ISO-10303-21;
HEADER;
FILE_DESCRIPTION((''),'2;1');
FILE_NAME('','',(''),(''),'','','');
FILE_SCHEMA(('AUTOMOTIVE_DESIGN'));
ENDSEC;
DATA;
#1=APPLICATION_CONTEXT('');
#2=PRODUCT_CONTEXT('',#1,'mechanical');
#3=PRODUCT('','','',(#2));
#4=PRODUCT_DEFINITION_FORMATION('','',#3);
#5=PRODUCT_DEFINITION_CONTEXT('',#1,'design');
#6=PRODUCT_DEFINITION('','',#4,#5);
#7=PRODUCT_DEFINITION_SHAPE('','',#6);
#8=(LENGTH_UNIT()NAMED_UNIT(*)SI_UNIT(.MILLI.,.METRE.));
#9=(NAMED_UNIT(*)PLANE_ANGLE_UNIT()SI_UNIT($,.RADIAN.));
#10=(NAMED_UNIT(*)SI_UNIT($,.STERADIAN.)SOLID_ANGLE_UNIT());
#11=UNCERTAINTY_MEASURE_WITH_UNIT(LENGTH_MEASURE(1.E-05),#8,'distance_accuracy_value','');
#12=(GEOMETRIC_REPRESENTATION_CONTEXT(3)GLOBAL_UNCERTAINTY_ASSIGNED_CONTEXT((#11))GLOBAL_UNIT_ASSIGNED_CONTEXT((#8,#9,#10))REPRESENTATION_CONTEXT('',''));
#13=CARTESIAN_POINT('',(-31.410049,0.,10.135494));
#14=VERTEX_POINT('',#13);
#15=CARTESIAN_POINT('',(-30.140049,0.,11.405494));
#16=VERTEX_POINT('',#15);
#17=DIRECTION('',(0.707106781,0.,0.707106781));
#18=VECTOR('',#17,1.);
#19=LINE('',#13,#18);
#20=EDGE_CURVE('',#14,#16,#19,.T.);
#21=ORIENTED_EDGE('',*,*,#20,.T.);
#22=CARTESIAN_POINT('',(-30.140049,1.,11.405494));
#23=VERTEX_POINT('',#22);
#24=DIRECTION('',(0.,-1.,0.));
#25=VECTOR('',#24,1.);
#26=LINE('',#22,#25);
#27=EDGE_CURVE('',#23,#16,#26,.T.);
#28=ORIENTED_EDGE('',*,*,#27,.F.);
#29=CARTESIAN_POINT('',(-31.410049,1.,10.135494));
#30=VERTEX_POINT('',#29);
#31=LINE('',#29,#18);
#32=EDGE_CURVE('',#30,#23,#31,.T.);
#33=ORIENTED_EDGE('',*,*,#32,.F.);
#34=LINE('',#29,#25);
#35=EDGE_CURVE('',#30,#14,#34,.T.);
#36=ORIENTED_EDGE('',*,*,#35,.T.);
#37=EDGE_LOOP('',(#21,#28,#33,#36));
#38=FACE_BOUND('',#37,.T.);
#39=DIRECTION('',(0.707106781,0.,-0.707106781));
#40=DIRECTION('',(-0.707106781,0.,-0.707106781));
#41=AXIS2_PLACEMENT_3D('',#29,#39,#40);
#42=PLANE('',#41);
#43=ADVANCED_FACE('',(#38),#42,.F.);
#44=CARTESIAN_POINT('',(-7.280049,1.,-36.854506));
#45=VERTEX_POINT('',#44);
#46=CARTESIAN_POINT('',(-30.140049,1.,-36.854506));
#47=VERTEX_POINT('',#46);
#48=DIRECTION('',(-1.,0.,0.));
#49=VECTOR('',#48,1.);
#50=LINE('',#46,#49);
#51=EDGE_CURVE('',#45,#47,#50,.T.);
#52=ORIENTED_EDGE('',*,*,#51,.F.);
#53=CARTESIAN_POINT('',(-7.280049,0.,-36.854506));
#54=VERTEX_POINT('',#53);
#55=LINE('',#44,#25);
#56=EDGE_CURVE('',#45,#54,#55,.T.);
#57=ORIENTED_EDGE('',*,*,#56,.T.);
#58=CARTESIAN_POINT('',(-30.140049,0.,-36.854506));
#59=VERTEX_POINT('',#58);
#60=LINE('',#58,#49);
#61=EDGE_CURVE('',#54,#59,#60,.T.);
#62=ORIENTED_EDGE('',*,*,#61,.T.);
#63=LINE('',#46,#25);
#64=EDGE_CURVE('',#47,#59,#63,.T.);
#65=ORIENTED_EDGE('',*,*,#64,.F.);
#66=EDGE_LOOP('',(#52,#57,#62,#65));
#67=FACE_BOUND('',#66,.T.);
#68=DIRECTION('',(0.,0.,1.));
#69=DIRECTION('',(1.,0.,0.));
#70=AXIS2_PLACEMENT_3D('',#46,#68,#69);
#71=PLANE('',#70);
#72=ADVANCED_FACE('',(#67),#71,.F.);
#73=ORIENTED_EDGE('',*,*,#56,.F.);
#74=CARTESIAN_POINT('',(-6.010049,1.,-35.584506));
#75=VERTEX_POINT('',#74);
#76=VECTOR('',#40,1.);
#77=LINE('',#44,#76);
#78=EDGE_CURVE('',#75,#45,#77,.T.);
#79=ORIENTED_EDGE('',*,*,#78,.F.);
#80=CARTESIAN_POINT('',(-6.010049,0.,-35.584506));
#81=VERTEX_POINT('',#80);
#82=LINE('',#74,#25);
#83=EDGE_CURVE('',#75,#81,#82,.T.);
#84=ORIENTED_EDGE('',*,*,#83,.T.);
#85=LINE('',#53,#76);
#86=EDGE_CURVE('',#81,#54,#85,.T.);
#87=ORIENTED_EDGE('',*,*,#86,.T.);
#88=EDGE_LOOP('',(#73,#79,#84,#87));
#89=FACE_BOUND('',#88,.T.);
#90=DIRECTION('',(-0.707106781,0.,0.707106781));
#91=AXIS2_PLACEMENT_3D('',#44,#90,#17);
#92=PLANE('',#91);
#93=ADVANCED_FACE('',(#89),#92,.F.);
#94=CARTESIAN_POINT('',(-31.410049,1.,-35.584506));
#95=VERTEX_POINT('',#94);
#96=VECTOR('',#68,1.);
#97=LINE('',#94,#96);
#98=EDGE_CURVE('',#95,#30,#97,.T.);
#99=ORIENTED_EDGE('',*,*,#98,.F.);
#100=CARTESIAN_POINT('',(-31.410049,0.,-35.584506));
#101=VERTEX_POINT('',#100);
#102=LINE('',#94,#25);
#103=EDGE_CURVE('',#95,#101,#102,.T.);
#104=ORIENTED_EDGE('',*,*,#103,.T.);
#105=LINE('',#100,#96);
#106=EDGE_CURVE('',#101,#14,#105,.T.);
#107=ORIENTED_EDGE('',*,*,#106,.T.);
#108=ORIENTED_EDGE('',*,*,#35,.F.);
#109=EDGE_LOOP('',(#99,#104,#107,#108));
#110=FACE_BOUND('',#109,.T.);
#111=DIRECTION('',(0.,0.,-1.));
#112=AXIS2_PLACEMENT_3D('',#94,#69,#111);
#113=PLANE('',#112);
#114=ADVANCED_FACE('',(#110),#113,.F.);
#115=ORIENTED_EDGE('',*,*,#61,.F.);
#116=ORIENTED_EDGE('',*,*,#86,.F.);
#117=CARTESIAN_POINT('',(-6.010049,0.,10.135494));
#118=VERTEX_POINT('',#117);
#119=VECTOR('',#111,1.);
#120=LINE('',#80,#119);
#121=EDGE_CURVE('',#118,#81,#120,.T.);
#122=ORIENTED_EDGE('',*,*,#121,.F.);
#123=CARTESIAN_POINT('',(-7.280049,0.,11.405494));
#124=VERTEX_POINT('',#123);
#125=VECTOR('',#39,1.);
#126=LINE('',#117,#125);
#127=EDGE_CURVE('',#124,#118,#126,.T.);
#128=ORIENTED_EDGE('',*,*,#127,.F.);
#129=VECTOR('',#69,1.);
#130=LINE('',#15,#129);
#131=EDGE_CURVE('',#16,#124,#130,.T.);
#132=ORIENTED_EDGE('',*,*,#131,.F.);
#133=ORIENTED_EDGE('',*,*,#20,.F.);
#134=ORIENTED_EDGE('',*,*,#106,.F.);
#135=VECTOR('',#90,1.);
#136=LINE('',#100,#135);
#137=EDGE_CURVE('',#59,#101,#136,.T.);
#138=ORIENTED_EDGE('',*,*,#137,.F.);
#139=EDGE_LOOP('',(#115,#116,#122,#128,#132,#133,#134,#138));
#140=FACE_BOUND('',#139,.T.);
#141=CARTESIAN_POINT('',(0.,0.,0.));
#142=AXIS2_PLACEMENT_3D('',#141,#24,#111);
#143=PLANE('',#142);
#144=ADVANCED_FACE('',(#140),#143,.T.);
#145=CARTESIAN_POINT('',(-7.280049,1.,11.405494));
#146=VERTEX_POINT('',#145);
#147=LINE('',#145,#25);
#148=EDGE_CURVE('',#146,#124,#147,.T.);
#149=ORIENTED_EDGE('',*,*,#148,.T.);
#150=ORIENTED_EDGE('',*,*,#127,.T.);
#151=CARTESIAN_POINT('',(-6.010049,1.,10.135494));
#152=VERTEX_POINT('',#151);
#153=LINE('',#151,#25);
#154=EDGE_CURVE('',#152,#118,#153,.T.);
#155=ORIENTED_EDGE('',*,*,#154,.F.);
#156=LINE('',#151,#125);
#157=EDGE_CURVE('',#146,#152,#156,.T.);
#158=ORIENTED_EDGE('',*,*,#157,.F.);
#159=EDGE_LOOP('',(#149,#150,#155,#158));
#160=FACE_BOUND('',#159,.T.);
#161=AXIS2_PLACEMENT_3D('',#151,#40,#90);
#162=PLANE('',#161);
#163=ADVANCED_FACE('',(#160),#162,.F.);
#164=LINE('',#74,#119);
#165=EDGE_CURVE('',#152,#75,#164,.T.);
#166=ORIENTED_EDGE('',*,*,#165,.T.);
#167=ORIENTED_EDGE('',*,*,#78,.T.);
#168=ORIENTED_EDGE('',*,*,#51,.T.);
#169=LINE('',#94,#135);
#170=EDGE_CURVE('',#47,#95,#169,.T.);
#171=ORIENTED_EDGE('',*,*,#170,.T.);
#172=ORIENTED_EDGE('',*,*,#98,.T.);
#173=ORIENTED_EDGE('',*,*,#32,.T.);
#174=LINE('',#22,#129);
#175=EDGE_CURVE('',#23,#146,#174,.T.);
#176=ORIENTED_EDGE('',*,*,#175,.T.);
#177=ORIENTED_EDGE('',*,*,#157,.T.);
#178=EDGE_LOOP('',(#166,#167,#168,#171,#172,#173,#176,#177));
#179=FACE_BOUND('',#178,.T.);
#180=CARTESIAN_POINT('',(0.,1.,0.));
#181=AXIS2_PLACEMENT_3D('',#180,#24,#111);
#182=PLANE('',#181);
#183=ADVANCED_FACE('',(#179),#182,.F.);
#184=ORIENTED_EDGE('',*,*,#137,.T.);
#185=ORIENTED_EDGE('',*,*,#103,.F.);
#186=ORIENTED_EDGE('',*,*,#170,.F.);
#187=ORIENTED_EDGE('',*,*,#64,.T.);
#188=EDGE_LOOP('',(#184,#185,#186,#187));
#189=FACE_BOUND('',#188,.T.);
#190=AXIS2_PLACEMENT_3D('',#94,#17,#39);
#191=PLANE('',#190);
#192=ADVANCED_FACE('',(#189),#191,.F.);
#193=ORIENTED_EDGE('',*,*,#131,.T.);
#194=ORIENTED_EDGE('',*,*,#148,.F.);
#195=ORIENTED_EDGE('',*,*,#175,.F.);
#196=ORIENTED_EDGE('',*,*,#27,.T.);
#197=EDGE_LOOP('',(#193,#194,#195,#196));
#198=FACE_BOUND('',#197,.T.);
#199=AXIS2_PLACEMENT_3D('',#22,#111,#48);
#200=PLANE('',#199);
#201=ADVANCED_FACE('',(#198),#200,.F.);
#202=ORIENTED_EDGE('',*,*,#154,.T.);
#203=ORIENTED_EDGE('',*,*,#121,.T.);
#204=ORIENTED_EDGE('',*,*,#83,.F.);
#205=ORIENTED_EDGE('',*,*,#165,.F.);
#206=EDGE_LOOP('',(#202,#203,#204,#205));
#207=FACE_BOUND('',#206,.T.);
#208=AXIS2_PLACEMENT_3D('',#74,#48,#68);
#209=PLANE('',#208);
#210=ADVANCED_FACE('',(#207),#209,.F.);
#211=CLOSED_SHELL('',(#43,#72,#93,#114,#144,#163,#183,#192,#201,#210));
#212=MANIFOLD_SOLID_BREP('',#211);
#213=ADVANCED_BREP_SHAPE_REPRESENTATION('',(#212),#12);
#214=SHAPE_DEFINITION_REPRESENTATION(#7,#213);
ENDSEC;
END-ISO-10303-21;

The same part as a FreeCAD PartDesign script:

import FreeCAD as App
import Part
import Sketcher

V = App.Vector
Q = App.Units.Quantity

doc = App.newDocument("Part")
body = doc.addObject("PartDesign::Body", "Body")

sketch1 = doc.addObject("Sketcher::SketchObject", "Sketch")
body.addObject(sketch1)
sketch1.AttachmentSupport = (doc.XZ_Plane, [""])
sketch1.MapMode = "FlatFace"
sketch1.addGeometry([
    Part.LineSegment(V(-30.1, -36.9, 0), V(-31.4, -35.6, 0)),
    Part.LineSegment(V(-31.4, -35.6, 0), V(-31.4, 10.1, 0)),
    Part.LineSegment(V(-31.4, 10.1, 0), V(-30.1, 11.4, 0)),
    Part.LineSegment(V(-30.1, 11.4, 0), V(-7.3, 11.4, 0)),
    Part.LineSegment(V(-7.3, 11.4, 0), V(-6, 10.1, 0)),
    Part.LineSegment(V(-6, 10.1, 0), V(-6, -35.6, 0)),
    Part.LineSegment(V(-6, -35.6, 0), V(-7.3, -36.9, 0)),
    Part.LineSegment(V(-7.3, -36.9, 0), V(-30.1, -36.9, 0)),
], False)
sketch1.addConstraint([
    Sketcher.Constraint("Coincident", 0, 2, 1, 1),
    Sketcher.Constraint("Coincident", 1, 2, 2, 1),
    Sketcher.Constraint("Coincident", 2, 2, 3, 1),
    Sketcher.Constraint("Coincident", 3, 2, 4, 1),
    Sketcher.Constraint("Coincident", 4, 2, 5, 1),
    Sketcher.Constraint("Coincident", 5, 2, 6, 1),
    Sketcher.Constraint("Coincident", 6, 2, 7, 1),
    Sketcher.Constraint("Coincident", 7, 2, 0, 1),
    Sketcher.Constraint("Vertical", 1),
    Sketcher.Constraint("Horizontal", 3),
    Sketcher.Constraint("Vertical", 5),
    Sketcher.Constraint("Horizontal", 7),
    Sketcher.Constraint("Perpendicular", 0, 2),
    Sketcher.Constraint("Perpendicular", 2, 4),
    Sketcher.Constraint("Perpendicular", 4, 6),
    Sketcher.Constraint("Horizontal", 1, 2, 4, 2),
    Sketcher.Constraint("Horizontal", 0, 2, 5, 2),
    Sketcher.Constraint("Vertical", 3, 2, 6, 2),
    Sketcher.Constraint("Vertical", 2, 2, 7, 2),
    Sketcher.Constraint("DistanceX", 3, 1, 3, 2, Q("0.9 in")),
    Sketcher.Constraint("DistanceY", 1, 1, 1, 2, Q("1.8 in")),
    Sketcher.Constraint("DistanceX", 1, 2, 4, 2, Q("1 in")),
    Sketcher.Constraint("DistanceX", 0, 2, -1, 1, Q("31.410049 mm")),
    Sketcher.Constraint("DistanceY", 0, 2, -1, 1, Q("35.584506 mm")),
])
pad1 = doc.addObject("PartDesign::Pad", "Pad")
body.addObject(pad1)
pad1.Profile = sketch1
pad1.Length = 1
pad1.Reversed = True

doc.recompute()
